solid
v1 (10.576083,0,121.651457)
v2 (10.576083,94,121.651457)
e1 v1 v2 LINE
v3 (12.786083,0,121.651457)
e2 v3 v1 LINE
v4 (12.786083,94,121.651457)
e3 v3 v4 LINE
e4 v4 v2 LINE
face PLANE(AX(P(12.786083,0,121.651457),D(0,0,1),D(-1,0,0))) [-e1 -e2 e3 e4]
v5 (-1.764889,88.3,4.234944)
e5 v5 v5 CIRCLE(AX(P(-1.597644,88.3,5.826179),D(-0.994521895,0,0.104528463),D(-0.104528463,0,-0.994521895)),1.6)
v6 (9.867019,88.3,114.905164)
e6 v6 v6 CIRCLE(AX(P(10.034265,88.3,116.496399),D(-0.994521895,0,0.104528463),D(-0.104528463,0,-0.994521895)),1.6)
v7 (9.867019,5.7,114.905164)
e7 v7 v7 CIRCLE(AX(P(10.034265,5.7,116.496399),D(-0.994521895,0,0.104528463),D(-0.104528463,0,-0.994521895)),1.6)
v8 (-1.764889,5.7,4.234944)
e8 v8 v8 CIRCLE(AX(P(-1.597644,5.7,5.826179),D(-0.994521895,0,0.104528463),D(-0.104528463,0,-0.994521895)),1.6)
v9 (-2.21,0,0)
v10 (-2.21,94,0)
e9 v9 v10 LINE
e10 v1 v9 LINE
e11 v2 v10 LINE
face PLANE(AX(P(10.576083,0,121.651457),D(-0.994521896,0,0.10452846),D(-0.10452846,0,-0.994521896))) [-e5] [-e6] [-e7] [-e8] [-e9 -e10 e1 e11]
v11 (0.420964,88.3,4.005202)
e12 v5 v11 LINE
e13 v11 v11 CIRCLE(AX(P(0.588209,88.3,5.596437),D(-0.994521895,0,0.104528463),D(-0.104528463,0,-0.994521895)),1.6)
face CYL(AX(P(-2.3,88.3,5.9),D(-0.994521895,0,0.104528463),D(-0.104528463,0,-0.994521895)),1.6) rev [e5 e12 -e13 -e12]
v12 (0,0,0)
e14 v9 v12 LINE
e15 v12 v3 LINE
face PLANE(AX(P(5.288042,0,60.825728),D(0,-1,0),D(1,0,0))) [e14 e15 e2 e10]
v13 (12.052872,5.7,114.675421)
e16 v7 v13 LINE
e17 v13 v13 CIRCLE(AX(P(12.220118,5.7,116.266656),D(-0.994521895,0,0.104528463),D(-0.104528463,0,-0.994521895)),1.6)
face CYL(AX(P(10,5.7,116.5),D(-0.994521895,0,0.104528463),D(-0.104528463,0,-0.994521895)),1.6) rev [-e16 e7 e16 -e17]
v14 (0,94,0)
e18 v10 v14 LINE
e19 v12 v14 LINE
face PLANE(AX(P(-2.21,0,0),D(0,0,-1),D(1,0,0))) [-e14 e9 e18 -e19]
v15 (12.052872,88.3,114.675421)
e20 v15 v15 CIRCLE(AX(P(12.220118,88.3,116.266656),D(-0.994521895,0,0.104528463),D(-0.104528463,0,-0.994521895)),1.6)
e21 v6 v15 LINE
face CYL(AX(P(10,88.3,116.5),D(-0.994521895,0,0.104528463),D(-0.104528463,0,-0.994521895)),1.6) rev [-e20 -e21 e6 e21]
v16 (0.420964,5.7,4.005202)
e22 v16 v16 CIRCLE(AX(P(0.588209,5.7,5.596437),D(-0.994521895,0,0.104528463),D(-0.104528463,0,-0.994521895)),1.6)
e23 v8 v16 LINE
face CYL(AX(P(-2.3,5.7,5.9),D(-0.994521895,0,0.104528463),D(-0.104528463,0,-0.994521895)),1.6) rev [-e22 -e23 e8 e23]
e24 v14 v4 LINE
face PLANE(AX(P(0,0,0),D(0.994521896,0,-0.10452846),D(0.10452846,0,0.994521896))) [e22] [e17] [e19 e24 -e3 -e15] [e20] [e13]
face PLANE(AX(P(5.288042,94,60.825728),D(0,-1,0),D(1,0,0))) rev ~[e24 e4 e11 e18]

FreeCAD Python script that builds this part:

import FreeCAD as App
import Part
import Sketcher

V = App.Vector
Q = App.Units.Quantity


def add_polygon(sketch, points):
    """Adds a closed chain of lines whose ends are joined by coincident constraints."""
    first, n = sketch.GeometryCount, len(points)
    for a, b in zip(points, points[1:] + points[:1]):
        sketch.addGeometry(Part.LineSegment(App.Vector(*a, 0), App.Vector(*b, 0)), False)
    for i in range(n):
        sketch.addConstraint(Sketcher.Constraint("Coincident", first + i, 2, first + (i + 1) % n, 1))

doc = App.newDocument("Part")
params = doc.addObject("Spreadsheet::Sheet", "Params")
for row, (alias, value) in enumerate([
    ("sketch1_diameter", "3.2 mm"),
    ("pad1_length", "4 mm"),
    ("sketch2_diameter", "3.2 mm"),
    ("pad2_length", "4 mm"),
    ("sketch3_diameter", "3.2 mm"),
    ("pad3_length", "4 mm"),
    ("sketch4_diameter", "3.2 mm"),
    ("pad4_length", "4 mm"),
    ("sketch5_width", "2.21 mm"),
    ("pad5_length", "94 mm"),
], start=1):
    params.set(f"A{row}", alias)
    params.set(f"B{row}", "=" + value)
    params.setAlias(f"B{row}", alias)

body = doc.addObject("PartDesign::Body", "Body")

# Sketch on XY plane
sketch1 = body.newObject("Sketcher::SketchObject", "Sketch")
sketch1.AttachmentSupport = (doc.getObject("XY_Plane"), [""])
sketch1.MapMode = "FlatFace"
sketch1.addGeometry(Part.Circle(V(0, 0, 0), V(0, 0, 1), 1.6), False)
sketch1.addConstraint([
    Sketcher.Constraint("Coincident", 0, 3, -1, 1),
    Sketcher.Constraint("Diameter", 0, Q("3.2 mm")),
])
sketch1.setExpression("Constraints[1]", "Params.sketch1_diameter")
pad1 = body.newObject("PartDesign::Pad", "Pad")
pad1.Profile = sketch1
pad1.setExpression("Length", "Params.pad1_length")
body2 = doc.addObject("PartDesign::Body", "Body001")
doc.recompute()

body.Placement = App.Placement(V(10, 88.3, 116.5), App.Rotation(V(0, 1, 0), 96))
boolean = body2.newObject("PartDesign::Boolean", "Boolean")
boolean.Type = "Fuse"
boolean.addObjects([body])
body3 = doc.addObject("PartDesign::Body", "Body002")

# Sketch on XY plane
sketch2 = body3.newObject("Sketcher::SketchObject", "Sketch001")
sketch2.AttachmentSupport = (doc.getObject("XY_Plane002"), [""])
sketch2.MapMode = "FlatFace"
sketch2.addGeometry(Part.Circle(V(0, 0, 0), V(0, 0, 1), 1.6), False)
sketch2.addConstraint([
    Sketcher.Constraint("Coincident", 0, 3, -1, 1),
    Sketcher.Constraint("Diameter", 0, Q("3.2 mm")),
])
sketch2.setExpression("Constraints[1]", "Params.sketch2_diameter")
pad2 = body3.newObject("PartDesign::Pad", "Pad001")
pad2.Profile = sketch2
pad2.setExpression("Length", "Params.pad2_length")
body4 = doc.addObject("PartDesign::Body", "Body003")
doc.recompute()

body3.Placement = App.Placement(V(-2.3, 88.3, 5.9), App.Rotation(V(0, 1, 0), 96))
boolean2 = body4.newObject("PartDesign::Boolean", "Boolean001")
boolean2.Type = "Fuse"
boolean2.addObjects([body3])
body5 = doc.addObject("PartDesign::Body", "Body004")

# Sketch on XY plane
sketch3 = body5.newObject("Sketcher::SketchObject", "Sketch002")
sketch3.AttachmentSupport = (doc.getObject("XY_Plane004"), [""])
sketch3.MapMode = "FlatFace"
sketch3.addGeometry(Part.Circle(V(0, 0, 0), V(0, 0, 1), 1.6), False)
sketch3.addConstraint([
    Sketcher.Constraint("Coincident", 0, 3, -1, 1),
    Sketcher.Constraint("Diameter", 0, Q("3.2 mm")),
])
sketch3.setExpression("Constraints[1]", "Params.sketch3_diameter")
pad3 = body5.newObject("PartDesign::Pad", "Pad002")
pad3.Profile = sketch3
pad3.setExpression("Length", "Params.pad3_length")
body6 = doc.addObject("PartDesign::Body", "Body005")
doc.recompute()

body5.Placement = App.Placement(V(10, 5.7, 116.5), App.Rotation(V(0, 1, 0), 96))
boolean3 = body6.newObject("PartDesign::Boolean", "Boolean002")
boolean3.Type = "Fuse"
boolean3.addObjects([body5])
body7 = doc.addObject("PartDesign::Body", "Body006")

# Sketch on XY plane
sketch4 = body7.newObject("Sketcher::SketchObject", "Sketch003")
sketch4.AttachmentSupport = (doc.getObject("XY_Plane006"), [""])
sketch4.MapMode = "FlatFace"
sketch4.addGeometry(Part.Circle(V(0, 0, 0), V(0, 0, 1), 1.6), False)
sketch4.addConstraint([
    Sketcher.Constraint("Coincident", 0, 3, -1, 1),
    Sketcher.Constraint("Diameter", 0, Q("3.2 mm")),
])
sketch4.setExpression("Constraints[1]", "Params.sketch4_diameter")
pad4 = body7.newObject("PartDesign::Pad", "Pad003")
pad4.Profile = sketch4
pad4.setExpression("Length", "Params.pad4_length")
body8 = doc.addObject("PartDesign::Body", "Body007")
body8.AllowCompound = True
doc.recompute()

body7.Placement = App.Placement(V(-2.3, 5.7, 5.9), App.Rotation(V(0, 1, 0), 96))
boolean4 = body8.newObject("PartDesign::Boolean", "Boolean003")
boolean4.Type = "Fuse"
boolean4.addObjects([body7])
doc.recompute()

boolean5 = body8.newObject("PartDesign::Boolean", "Boolean004")
boolean5.Type = "Fuse"
boolean5.addObjects([body2])
doc.recompute()

boolean6 = body8.newObject("PartDesign::Boolean", "Boolean005")
boolean6.Type = "Fuse"
boolean6.addObjects([body4])
doc.recompute()

boolean7 = body8.newObject("PartDesign::Boolean", "Boolean006")
boolean7.Type = "Fuse"
boolean7.addObjects([body6])
body9 = doc.addObject("PartDesign::Body", "Body008")

# Sketch on XZ plane
sketch5 = body9.newObject("Sketcher::SketchObject", "Sketch004")
sketch5.AttachmentSupport = (doc.getObject("XZ_Plane008"), [""])
sketch5.MapMode = "FlatFace"
add_polygon(sketch5, [(0, 0), (12.8, 121.7), (10.6, 121.7), (-2.2, 0)])  # lines 0-3
sketch5.addConstraint([
    Sketcher.Constraint("Horizontal", 1),
    Sketcher.Constraint("Horizontal", 3),
    Sketcher.Constraint("Coincident", 3, 2, -1, 1),
    Sketcher.Constraint("Parallel", 0, 2),
    Sketcher.Constraint("Angle", 0, Q("84 deg")),
    Sketcher.Constraint("DistanceX", 1, 2, 1, 1, Q("2.21 mm")),
    Sketcher.Constraint("Distance", 0, Q("122.321547 mm")),
])
sketch5.setExpression("Constraints[9]", "Params.sketch5_width")
pad5 = body9.newObject("PartDesign::Pad", "Pad004")
pad5.Profile = sketch5
pad5.setExpression("Length", "Params.pad5_length")
pad5.Reversed = True
doc.recompute()

boolean8 = body9.newObject("PartDesign::Boolean", "Boolean007")
boolean8.Type = "Cut"
boolean8.addObjects([body8])

doc.recompute()
